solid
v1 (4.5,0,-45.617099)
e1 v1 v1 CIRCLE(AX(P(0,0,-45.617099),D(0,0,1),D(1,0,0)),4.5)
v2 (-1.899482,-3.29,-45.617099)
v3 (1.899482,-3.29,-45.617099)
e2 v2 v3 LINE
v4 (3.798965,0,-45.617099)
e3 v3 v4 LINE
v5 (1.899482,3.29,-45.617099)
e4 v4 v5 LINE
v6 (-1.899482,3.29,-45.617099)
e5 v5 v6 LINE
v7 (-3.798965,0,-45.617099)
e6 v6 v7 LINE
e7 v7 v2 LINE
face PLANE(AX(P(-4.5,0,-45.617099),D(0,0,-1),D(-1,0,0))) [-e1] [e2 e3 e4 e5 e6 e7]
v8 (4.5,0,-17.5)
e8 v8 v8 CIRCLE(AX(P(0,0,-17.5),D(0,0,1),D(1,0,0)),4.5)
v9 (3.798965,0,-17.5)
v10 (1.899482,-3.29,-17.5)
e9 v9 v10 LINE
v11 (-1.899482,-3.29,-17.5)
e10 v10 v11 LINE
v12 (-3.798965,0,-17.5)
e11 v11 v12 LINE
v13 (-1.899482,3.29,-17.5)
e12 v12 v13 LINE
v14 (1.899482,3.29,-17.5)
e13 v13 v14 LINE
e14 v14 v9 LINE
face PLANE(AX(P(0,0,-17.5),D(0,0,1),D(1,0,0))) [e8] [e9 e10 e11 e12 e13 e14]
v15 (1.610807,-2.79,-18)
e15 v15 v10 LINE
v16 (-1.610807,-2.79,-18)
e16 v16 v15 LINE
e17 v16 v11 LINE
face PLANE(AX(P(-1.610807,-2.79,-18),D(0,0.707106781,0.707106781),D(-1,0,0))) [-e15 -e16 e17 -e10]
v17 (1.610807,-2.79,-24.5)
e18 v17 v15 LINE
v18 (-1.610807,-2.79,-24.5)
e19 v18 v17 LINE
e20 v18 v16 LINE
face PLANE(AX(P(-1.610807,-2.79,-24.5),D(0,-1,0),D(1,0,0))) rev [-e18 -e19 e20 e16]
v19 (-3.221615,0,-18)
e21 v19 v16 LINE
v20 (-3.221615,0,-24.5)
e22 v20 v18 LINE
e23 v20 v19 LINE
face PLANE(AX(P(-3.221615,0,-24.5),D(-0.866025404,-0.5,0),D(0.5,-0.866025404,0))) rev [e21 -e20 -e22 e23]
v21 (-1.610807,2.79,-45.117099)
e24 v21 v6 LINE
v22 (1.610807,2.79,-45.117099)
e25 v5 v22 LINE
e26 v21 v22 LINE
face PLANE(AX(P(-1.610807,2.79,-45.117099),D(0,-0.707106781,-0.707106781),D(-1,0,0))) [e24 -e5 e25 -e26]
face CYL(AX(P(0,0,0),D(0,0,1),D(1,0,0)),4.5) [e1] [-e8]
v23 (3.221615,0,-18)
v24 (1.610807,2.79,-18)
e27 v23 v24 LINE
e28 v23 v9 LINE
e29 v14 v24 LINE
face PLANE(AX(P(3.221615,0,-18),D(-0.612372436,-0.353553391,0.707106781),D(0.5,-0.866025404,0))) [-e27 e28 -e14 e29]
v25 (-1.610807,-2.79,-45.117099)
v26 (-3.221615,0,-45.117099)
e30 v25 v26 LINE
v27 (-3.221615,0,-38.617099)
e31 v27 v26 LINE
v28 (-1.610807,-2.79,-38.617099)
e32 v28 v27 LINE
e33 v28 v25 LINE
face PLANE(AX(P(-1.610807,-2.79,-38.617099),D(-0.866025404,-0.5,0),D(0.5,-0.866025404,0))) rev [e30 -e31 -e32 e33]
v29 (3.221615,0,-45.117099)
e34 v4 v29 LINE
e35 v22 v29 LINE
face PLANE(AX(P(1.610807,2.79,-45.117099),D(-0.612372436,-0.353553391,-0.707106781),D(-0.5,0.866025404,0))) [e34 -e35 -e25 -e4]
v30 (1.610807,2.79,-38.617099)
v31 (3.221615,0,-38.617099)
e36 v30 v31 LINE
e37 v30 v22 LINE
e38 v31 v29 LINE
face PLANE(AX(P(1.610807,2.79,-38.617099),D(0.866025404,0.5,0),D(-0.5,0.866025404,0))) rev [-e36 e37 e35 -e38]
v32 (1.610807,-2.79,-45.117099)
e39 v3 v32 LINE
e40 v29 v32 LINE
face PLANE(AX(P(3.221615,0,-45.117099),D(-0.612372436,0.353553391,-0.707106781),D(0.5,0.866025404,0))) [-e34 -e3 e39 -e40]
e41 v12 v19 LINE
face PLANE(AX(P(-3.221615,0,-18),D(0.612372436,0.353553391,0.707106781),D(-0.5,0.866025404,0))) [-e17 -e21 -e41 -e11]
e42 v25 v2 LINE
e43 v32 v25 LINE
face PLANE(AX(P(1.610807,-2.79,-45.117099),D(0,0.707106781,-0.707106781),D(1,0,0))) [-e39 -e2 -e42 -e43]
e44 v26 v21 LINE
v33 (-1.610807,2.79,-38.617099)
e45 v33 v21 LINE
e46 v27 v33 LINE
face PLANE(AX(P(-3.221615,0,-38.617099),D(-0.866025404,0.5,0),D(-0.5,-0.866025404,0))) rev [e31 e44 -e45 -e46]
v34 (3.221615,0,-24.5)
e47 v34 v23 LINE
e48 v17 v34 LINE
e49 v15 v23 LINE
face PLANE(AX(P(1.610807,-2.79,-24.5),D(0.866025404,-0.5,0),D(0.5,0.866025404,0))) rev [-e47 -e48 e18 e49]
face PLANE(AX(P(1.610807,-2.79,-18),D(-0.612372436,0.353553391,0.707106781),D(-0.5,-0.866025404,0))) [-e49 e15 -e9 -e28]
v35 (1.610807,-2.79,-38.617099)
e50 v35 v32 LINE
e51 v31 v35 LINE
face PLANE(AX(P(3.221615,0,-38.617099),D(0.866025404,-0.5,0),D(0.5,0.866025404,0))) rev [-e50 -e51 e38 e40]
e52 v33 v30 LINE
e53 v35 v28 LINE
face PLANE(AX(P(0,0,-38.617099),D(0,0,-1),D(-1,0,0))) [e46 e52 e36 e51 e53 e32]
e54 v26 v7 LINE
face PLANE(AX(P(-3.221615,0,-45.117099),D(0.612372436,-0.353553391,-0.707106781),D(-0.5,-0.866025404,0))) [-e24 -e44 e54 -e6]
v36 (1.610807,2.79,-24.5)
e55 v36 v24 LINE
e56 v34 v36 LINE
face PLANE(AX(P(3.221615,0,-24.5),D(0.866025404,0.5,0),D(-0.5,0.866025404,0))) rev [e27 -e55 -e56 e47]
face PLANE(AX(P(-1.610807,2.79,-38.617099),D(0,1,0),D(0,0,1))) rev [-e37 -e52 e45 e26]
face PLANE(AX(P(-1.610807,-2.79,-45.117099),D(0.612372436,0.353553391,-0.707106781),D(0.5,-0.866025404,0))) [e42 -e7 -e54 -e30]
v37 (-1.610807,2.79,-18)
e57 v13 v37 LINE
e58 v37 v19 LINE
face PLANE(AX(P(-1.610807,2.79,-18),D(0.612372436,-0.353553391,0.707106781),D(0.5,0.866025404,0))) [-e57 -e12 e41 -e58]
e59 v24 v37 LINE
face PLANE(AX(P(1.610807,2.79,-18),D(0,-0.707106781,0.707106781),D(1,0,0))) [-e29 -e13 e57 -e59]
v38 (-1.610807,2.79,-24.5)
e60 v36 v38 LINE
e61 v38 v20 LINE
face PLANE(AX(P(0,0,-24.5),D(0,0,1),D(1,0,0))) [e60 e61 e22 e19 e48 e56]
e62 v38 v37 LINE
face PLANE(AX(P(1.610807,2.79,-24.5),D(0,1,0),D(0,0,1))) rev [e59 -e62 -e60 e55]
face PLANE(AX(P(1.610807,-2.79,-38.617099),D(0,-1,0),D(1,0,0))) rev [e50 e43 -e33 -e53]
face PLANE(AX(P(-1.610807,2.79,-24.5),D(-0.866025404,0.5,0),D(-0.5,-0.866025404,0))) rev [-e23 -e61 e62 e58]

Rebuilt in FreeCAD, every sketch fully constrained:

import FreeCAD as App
import Part
import Sketcher
from FreeCAD import Vector
Q = App.Units.Quantity


def edges_at(feature, points):
    """Names of the edges that pass closest to the given points."""
    edges = feature.Shape.Edges
    near = lambda p: min(range(len(edges)), key=lambda i: edges[i].distToShape(Part.Vertex(*p))[0])
    return sorted({f"Edge{near(p) + 1}" for p in points})

doc = App.newDocument("Part")
params = doc.addObject("Spreadsheet::Sheet", "Params")
for row, (alias, value) in enumerate([
    ("sketch1_width", "4.5 mm"),
    ("revolution_angle", "360 deg"),
    ("pocket1_length", "7 mm"),
    ("pocket2_length", "7 mm"),
    ("chamfer_size", "0.5 mm"),
], start=1):
    params.set(f"A{row}", alias)
    params.set(f"B{row}", "=" + value)
    params.setAlias(f"B{row}", alias)

body = doc.addObject("PartDesign::Body", "Body")

# Sketch on XZ plane
sketch1 = doc.addObject("Sketcher::SketchObject", "Sketch")
body.addObject(sketch1)
sketch1.AttachmentSupport = (doc.XZ_Plane, [""])
sketch1.MapMode = "FlatFace"
sketch1.addGeometry([
    Part.LineSegment(Vector(0, -45.617099, 0), Vector(0, -17.5, 0)),
    Part.LineSegment(Vector(0, -17.5, 0), Vector(4.5, -17.5, 0)),
    Part.LineSegment(Vector(4.5, -17.5, 0), Vector(4.5, -45.617099, 0)),
    Part.LineSegment(Vector(4.5, -45.617099, 0), Vector(0, -45.617099, 0)),
], False)
sketch1.addConstraint([
    Sketcher.Constraint("Coincident", 0, 2, 1, 1),
    Sketcher.Constraint("Coincident", 1, 2, 2, 1),
    Sketcher.Constraint("Coincident", 2, 2, 3, 1),
    Sketcher.Constraint("Coincident", 3, 2, 0, 1),
    Sketcher.Constraint("Vertical", 0),
    Sketcher.Constraint("Horizontal", 1),
    Sketcher.Constraint("Vertical", 2),
    Sketcher.Constraint("Horizontal", 3),
    Sketcher.Constraint("PointOnObject", 0, 2, -2),
    Sketcher.Constraint("DistanceX", 1, 1, 1, 2, Q("4.5 mm")),
    Sketcher.Constraint("DistanceY", 0, 2, -1, 1, Q("17.5 mm")),
    Sketcher.Constraint("DistanceY", 0, 1, 0, 2, Q("28.117099 mm")),
])
sketch1.setExpression("Constraints[9]", "Params.sketch1_width")
revolution = doc.addObject("PartDesign::Revolution", "Revolution")
body.addObject(revolution)
revolution.Profile = sketch1
revolution.ReferenceAxis = (sketch1, ["V_Axis"])
revolution.setExpression("Angle", "Params.revolution_angle")

# Sketch on XY plane
sketch2 = doc.addObject("Sketcher::SketchObject", "Sketch001")
body.addObject(sketch2)
sketch2.AttachmentSupport = (doc.XY_Plane, [""])
sketch2.MapMode = "FlatFace"
sketch2.AttachmentOffset = App.Placement(Vector(0, 0, -17.5), App.Rotation())
sketch2.addGeometry([
    Part.LineSegment(Vector(1.610807, 2.79, 0), Vector(-1.610807, 2.79, 0)),  # 0
    Part.LineSegment(Vector(-1.610807, 2.79, 0), Vector(-3.221615, 0, 0)),  # 1
    Part.LineSegment(Vector(-3.221615, 0, 0), Vector(-1.610807, -2.79, 0)),  # 2
    Part.LineSegment(Vector(-1.610807, -2.79, 0), Vector(1.610807, -2.79, 0)),  # 3
    Part.LineSegment(Vector(1.610807, -2.79, 0), Vector(3.221615, 0, 0)),  # 4
    Part.LineSegment(Vector(3.221615, 0, 0), Vector(1.610807, 2.79, 0)),  # 5
], False)
sketch2.addConstraint([
    Sketcher.Constraint("Coincident", 0, 2, 1, 1),
    Sketcher.Constraint("Coincident", 1, 2, 2, 1),
    Sketcher.Constraint("Coincident", 2, 2, 3, 1),
    Sketcher.Constraint("Coincident", 3, 2, 4, 1),
    Sketcher.Constraint("Coincident", 4, 2, 5, 1),
    Sketcher.Constraint("Coincident", 5, 2, 0, 1),
    Sketcher.Constraint("Horizontal", 0),
    Sketcher.Constraint("Horizontal", 3),
    Sketcher.Constraint("Symmetric", 0, 2, 3, 2, -1, 1),
    Sketcher.Constraint("Symmetric", 1, 2, 4, 2, -1, 1),
    Sketcher.Constraint("PointOnObject", 1, 2, -1),
    Sketcher.Constraint("Parallel", 2, 5),
    Sketcher.Constraint("Vertical", 0, 2, 2, 2),
    Sketcher.Constraint("Angle", 1, Q("-120 deg")),
    Sketcher.Constraint("DistanceY", -1, 1, 0, 2, Q("2.79 mm")),
    Sketcher.Constraint("DistanceX", 0, 2, 0, 1, Q("3.221615 mm")),
])
pocket1 = doc.addObject("PartDesign::Pocket", "Pocket")
body.addObject(pocket1)
pocket1.Profile = sketch2
pocket1.setExpression("Length", "Params.pocket1_length")

# Sketch on XY plane
sketch3 = doc.addObject("Sketcher::SketchObject", "Sketch002")
body.addObject(sketch3)
sketch3.AttachmentSupport = (doc.XY_Plane, [""])
sketch3.MapMode = "FlatFace"
sketch3.AttachmentOffset = App.Placement(Vector(0, 0, -45.617099), App.Rotation())
sketch3.addGeometry([
    Part.LineSegment(Vector(-1.610807, 2.79, 0), Vector(1.610807, 2.79, 0)),  # 0
    Part.LineSegment(Vector(1.610807, 2.79, 0), Vector(3.221615, 0, 0)),  # 1
    Part.LineSegment(Vector(3.221615, 0, 0), Vector(1.610807, -2.79, 0)),  # 2
    Part.LineSegment(Vector(1.610807, -2.79, 0), Vector(-1.610807, -2.79, 0)),  # 3
    Part.LineSegment(Vector(-1.610807, -2.79, 0), Vector(-3.221615, 0, 0)),  # 4
    Part.LineSegment(Vector(-3.221615, 0, 0), Vector(-1.610807, 2.79, 0)),  # 5
], False)
sketch3.addConstraint([
    Sketcher.Constraint("Coincident", 0, 2, 1, 1),
    Sketcher.Constraint("Coincident", 1, 2, 2, 1),
    Sketcher.Constraint("Coincident", 2, 2, 3, 1),
    Sketcher.Constraint("Coincident", 3, 2, 4, 1),
    Sketcher.Constraint("Coincident", 4, 2, 5, 1),
    Sketcher.Constraint("Coincident", 5, 2, 0, 1),
    Sketcher.Constraint("Horizontal", 0),
    Sketcher.Constraint("Horizontal", 3),
    Sketcher.Constraint("Symmetric", 0, 2, 3, 2, -1, 1),
    Sketcher.Constraint("Symmetric", 1, 2, 4, 2, -1, 1),
    Sketcher.Constraint("PointOnObject", 1, 2, -1),
    Sketcher.Constraint("Parallel", 2, 5),
    Sketcher.Constraint("Vertical", 0, 2, 2, 2),
    Sketcher.Constraint("Angle", 1, Q("-60 deg")),
    Sketcher.Constraint("DistanceY", -1, 1, 0, 2, Q("2.79 mm")),
    Sketcher.Constraint("DistanceX", 0, 1, 0, 2, Q("3.221615 mm")),
])
pocket2 = doc.addObject("PartDesign::Pocket", "Pocket001")
body.addObject(pocket2)
pocket2.Profile = sketch3
pocket2.setExpression("Length", "Params.pocket2_length")
pocket2.Reversed = True
doc.recompute()

chamfer = doc.addObject("PartDesign::Chamfer", "Chamfer")
body.addObject(chamfer)
chamfer.Base = (pocket2, edges_at(pocket2, [
    (2.416, 1.395, -17.5),
    (0, 2.79, -17.5),
    (-2.416, 1.395, -17.5),
    (-2.416, -1.395, -17.5),
    (0, -2.79, -17.5),
    (2.416, -1.395, -17.5),
    (-2.416, 1.395, -45.617),
    (0, 2.79, -45.617),
    (2.416, 1.395, -45.617),
    (2.416, -1.395, -45.617),
    (0, -2.79, -45.617),
    (-2.416, -1.395, -45.617),
]))
chamfer.setExpression("Size", "Params.chamfer_size")

doc.recompute()
